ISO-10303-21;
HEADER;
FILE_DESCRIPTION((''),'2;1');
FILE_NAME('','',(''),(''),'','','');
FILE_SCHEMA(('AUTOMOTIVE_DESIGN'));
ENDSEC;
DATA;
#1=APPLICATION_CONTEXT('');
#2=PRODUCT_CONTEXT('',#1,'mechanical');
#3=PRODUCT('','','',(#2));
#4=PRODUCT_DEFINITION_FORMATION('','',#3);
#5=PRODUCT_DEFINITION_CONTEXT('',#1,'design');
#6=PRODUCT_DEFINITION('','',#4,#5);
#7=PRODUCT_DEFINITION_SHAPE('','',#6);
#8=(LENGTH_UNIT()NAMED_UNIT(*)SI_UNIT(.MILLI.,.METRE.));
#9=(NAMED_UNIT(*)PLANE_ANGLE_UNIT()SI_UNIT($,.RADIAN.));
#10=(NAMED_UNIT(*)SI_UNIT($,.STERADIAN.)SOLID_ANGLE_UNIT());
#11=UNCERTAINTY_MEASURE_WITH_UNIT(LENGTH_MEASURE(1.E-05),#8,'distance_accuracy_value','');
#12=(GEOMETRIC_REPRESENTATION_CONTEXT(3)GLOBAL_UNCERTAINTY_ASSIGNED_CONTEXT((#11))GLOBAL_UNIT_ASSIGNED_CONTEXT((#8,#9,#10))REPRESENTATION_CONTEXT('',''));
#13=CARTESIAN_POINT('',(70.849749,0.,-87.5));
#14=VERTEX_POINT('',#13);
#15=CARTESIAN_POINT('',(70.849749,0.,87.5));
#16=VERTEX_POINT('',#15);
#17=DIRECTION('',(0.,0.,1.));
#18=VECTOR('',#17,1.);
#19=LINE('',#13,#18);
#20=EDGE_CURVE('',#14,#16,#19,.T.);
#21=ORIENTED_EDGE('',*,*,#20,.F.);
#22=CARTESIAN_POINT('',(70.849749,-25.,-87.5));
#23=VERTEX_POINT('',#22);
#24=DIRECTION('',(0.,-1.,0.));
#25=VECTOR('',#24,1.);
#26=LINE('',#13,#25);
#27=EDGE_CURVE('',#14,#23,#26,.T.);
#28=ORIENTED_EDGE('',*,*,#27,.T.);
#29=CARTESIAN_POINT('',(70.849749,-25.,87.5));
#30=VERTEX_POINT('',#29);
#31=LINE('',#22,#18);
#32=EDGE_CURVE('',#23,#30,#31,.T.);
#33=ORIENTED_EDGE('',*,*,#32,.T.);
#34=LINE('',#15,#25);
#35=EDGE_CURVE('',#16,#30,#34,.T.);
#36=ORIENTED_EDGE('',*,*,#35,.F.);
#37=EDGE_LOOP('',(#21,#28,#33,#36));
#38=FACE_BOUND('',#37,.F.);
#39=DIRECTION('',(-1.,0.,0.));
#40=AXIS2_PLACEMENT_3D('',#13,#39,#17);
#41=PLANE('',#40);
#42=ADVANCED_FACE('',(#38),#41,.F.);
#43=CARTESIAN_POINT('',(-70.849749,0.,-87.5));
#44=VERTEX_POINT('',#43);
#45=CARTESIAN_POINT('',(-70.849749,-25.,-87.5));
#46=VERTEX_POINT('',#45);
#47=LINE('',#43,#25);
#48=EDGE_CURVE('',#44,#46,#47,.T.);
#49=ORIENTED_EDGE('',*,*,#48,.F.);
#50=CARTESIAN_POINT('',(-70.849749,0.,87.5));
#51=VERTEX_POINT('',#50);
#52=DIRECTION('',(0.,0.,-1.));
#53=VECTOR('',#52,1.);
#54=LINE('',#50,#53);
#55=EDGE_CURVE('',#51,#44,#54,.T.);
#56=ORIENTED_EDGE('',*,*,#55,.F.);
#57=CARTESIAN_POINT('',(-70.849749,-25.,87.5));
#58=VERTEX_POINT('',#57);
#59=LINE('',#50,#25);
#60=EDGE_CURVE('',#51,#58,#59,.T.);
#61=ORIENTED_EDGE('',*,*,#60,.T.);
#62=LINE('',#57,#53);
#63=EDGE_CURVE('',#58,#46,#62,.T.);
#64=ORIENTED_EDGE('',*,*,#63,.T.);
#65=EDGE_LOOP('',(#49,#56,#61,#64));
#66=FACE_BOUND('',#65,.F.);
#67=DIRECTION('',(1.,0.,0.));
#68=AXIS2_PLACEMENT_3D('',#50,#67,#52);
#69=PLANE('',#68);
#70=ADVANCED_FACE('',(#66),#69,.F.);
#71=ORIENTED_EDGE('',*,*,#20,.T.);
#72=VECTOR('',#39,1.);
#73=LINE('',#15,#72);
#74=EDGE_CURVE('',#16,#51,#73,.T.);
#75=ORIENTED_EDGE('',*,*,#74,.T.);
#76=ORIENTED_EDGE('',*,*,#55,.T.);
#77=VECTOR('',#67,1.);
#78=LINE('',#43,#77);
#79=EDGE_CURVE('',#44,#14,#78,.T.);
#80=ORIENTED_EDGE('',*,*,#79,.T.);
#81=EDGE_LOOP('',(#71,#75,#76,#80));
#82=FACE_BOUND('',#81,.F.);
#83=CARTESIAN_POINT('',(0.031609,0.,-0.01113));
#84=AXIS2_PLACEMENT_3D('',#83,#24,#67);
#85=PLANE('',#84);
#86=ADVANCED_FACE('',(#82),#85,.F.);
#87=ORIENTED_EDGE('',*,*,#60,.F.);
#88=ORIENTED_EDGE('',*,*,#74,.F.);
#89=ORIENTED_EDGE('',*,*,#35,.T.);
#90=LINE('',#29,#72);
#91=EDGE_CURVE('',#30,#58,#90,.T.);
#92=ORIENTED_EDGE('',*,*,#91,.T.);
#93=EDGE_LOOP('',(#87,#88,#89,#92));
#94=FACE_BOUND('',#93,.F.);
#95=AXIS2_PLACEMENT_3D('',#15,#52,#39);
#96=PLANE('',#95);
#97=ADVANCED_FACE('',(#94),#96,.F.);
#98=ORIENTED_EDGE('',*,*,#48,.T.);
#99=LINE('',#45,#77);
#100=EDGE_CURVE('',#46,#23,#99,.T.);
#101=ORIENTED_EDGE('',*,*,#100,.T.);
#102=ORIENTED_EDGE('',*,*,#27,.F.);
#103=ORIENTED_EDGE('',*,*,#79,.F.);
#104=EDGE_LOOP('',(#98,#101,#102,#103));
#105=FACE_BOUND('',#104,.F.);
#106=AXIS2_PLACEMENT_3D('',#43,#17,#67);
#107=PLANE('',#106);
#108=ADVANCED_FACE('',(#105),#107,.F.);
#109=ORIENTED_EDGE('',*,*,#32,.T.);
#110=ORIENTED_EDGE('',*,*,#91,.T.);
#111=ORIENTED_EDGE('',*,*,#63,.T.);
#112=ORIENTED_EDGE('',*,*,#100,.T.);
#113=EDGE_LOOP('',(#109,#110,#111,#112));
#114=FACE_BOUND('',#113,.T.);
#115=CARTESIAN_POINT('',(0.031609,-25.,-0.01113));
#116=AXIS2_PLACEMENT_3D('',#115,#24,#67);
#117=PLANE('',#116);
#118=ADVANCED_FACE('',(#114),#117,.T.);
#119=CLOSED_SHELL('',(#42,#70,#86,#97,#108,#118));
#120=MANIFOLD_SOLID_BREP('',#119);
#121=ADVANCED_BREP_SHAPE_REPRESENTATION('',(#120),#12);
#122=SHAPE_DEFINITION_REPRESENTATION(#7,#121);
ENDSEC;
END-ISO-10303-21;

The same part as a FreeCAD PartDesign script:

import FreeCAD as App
import Part
import Sketcher


def add_polygon(sketch, points):
    """Adds a closed chain of lines whose ends are joined by coincident constraints."""
    first, n = sketch.GeometryCount, len(points)
    for a, b in zip(points, points[1:] + points[:1]):
        sketch.addGeometry(Part.LineSegment(App.Vector(*a, 0), App.Vector(*b, 0)), False)
    for i in range(n):
        sketch.addConstraint(Sketcher.Constraint("Coincident", first + i, 2, first + (i + 1) % n, 1))

doc = App.newDocument("Part")
body = doc.addObject("PartDesign::Body", "Body")

sketch1 = doc.addObject("Sketcher::SketchObject", "Sketch")
body.addObject(sketch1)
sketch1.AttachmentSupport = (doc.XZ_Plane, [""])
sketch1.MapMode = "FlatFace"
add_polygon(sketch1, [(70.849749, 87.5), (-70.849749, 87.5), (-70.849749, -87.5), (70.849749, -87.5)])
sketch1.addConstraint([
    Sketcher.Constraint("Horizontal", 0),
    Sketcher.Constraint("Vertical", 1),
    Sketcher.Constraint("Horizontal", 2),
    Sketcher.Constraint("Vertical", 3),
    Sketcher.Constraint("Symmetric", 0, 2, 2, 2, -1, 1),
    Sketcher.Constraint("DistanceY", 1, 2, 1, 1, 175.0),
    Sketcher.Constraint("DistanceX", 0, 2, 0, 1, 141.699498),
])
pad1 = doc.addObject("PartDesign::Pad", "Pad")
body.addObject(pad1)
pad1.Profile = sketch1
pad1.Length = 25

sketch2 = doc.addObject("Sketcher::SketchObject", "Sketch001")
body.addObject(sketch2)
sketch2.AttachmentSupport = (doc.XZ_Plane, [""])
sketch2.MapMode = "FlatFace"
add_polygon(sketch2, [(70.849749, 87.5), (-70.849749, 87.5), (-70.849749, -87.5), (70.849749, -87.5)])
sketch2.addConstraint([
    Sketcher.Constraint("Horizontal", 0),
    Sketcher.Constraint("Vertical", 1),
    Sketcher.Constraint("Horizontal", 2),
    Sketcher.Constraint("Vertical", 3),
    Sketcher.Constraint("Symmetric", 0, 2, 2, 2, -1, 1),
    Sketcher.Constraint("DistanceY", 1, 2, 1, 1, 175.0),
    Sketcher.Constraint("DistanceX", 0, 2, 0, 1, 141.699498),
])
pad2 = doc.addObject("PartDesign::Pad", "Pad001")
body.addObject(pad2)
pad2.Profile = sketch2
pad2.Length = 25

doc.recompute()
